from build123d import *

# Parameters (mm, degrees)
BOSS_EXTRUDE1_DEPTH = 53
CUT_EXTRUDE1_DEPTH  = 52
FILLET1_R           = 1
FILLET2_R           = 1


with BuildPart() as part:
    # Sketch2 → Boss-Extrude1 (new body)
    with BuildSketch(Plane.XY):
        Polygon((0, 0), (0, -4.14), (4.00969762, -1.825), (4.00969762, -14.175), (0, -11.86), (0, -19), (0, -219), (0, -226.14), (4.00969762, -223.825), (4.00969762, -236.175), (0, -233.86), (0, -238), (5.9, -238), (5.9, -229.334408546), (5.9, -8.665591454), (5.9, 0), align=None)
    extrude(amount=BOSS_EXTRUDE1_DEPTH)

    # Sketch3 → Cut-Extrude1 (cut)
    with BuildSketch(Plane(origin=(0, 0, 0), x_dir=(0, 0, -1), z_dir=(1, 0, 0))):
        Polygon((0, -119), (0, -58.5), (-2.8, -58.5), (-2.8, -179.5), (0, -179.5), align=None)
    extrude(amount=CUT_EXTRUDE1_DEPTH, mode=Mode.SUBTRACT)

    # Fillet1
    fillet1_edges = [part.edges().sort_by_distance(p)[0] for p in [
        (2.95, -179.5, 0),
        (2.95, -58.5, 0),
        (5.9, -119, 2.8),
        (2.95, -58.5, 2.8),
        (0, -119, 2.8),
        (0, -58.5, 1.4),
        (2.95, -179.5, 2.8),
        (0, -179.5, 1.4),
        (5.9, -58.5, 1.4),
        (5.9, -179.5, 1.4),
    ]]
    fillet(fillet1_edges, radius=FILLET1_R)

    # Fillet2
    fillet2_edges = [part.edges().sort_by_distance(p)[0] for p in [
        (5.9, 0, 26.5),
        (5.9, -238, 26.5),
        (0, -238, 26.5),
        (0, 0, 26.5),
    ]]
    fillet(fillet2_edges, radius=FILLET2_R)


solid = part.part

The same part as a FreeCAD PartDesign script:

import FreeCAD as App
import Part
import Sketcher
from FreeCAD import Vector
Q = App.Units.Quantity


def edges_at(feature, points):
    """Names of the edges that pass closest to the given points."""
    edges = feature.Shape.Edges
    near = lambda p: min(range(len(edges)), key=lambda i: edges[i].distToShape(Part.Vertex(*p))[0])
    return sorted({f"Edge{near(p) + 1}" for p in points})

doc = App.newDocument("Part")
params = doc.addObject("Spreadsheet::Sheet", "Params")
for row, (alias, value) in enumerate([
    ("sketch1_height", "238 mm"),
    ("sketch1_width", "5.9 mm"),
    ("sketch1_height2", "4.14 mm"),
    ("sketch1_height3", "12.35 mm"),
    ("pad1_length", "53 mm"),
    ("sketch2_width", "121 mm"),
    ("sketch2_height", "2.8 mm"),
    ("pocket1_length", "52 mm"),
    ("fillet_radius", "1 mm"),
    ("fillet2_radius", "1 mm"),
], start=1):
    params.set(f"A{row}", alias)
    params.set(f"B{row}", "=" + value)
    params.setAlias(f"B{row}", alias)

body = doc.addObject("PartDesign::Body", "Body")

# Sketch on XY plane
sketch1 = doc.addObject("Sketcher::SketchObject", "Sketch")
body.addObject(sketch1)
sketch1.AttachmentSupport = (doc.XY_Plane, [""])
sketch1.MapMode = "FlatFace"
sketch1.addGeometry([
    Part.LineSegment(Vector(0, 0, 0), Vector(0, -4.14, 0)),  # 0
    Part.LineSegment(Vector(0, -4.14, 0), Vector(4.009698, -1.825, 0)),  # 1
    Part.LineSegment(Vector(4.009698, -1.825, 0), Vector(4.009698, -14.175, 0)),  # 2
    Part.LineSegment(Vector(4.009698, -14.175, 0), Vector(0, -11.86, 0)),  # 3
    Part.LineSegment(Vector(0, -11.86, 0), Vector(0, -226.14, 0)),  # 4
    Part.LineSegment(Vector(0, -226.14, 0), Vector(4.009698, -223.825, 0)),  # 5
    Part.LineSegment(Vector(4.009698, -223.825, 0), Vector(4.009698, -236.175, 0)),  # 6
    Part.LineSegment(Vector(4.009698, -236.175, 0), Vector(0, -233.86, 0)),  # 7
    Part.LineSegment(Vector(0, -233.86, 0), Vector(0, -238, 0)),  # 8
    Part.LineSegment(Vector(0, -238, 0), Vector(5.9, -238, 0)),  # 9
    Part.LineSegment(Vector(5.9, -238, 0), Vector(5.9, 0, 0)),  # 10
    Part.LineSegment(Vector(5.9, 0, 0), Vector(0, 0, 0)),  # 11
], False)
sketch1.addConstraint([
    Sketcher.Constraint("Coincident", 0, 2, 1, 1),
    Sketcher.Constraint("Coincident", 1, 2, 2, 1),
    Sketcher.Constraint("Coincident", 2, 2, 3, 1),
    Sketcher.Constraint("Coincident", 3, 2, 4, 1),
    Sketcher.Constraint("Coincident", 4, 2, 5, 1),
    Sketcher.Constraint("Coincident", 5, 2, 6, 1),
    Sketcher.Constraint("Coincident", 6, 2, 7, 1),
    Sketcher.Constraint("Coincident", 7, 2, 8, 1),
    Sketcher.Constraint("Coincident", 8, 2, 9, 1),
    Sketcher.Constraint("Coincident", 9, 2, 10, 1),
    Sketcher.Constraint("Coincident", 10, 2, 11, 1),
    Sketcher.Constraint("Coincident", 11, 2, 0, 1),
    Sketcher.Constraint("Vertical", 0),
    Sketcher.Constraint("Vertical", 2),
    Sketcher.Constraint("Vertical", 4),
    Sketcher.Constraint("Vertical", 6),
    Sketcher.Constraint("Vertical", 8),
    Sketcher.Constraint("Horizontal", 9),
    Sketcher.Constraint("Vertical", 10),
    Sketcher.Constraint("Horizontal", 11),
    Sketcher.Constraint("Coincident", 11, 2, -1, 1),
    Sketcher.Constraint("PointOnObject", 3, 2, -2),
    Sketcher.Constraint("PointOnObject", 7, 2, -2),
    Sketcher.Constraint("Parallel", 1, 5),
    Sketcher.Constraint("Parallel", 3, 7),
    Sketcher.Constraint("Vertical", 2, 2, 5, 2),
    Sketcher.Constraint("Equal", 2, 6),
    Sketcher.Constraint("Equal", 0, 8),
    Sketcher.Constraint("Equal", 1, 3),
    Sketcher.Constraint("DistanceY", 10, 1, 10, 2, 238.0),
    Sketcher.Constraint("Angle", 1, Q("30 deg")),
    Sketcher.Constraint("DistanceX", 9, 1, 9, 2, 5.9),
    Sketcher.Constraint("DistanceY", 4, 2, 0, 2, 222.0),
    Sketcher.Constraint("DistanceY", 0, 2, 0, 1, 4.14),
    Sketcher.Constraint("DistanceY", 2, 2, 2, 1, 12.35),
])
sketch1.setExpression("Constraints[29]", "Params.sketch1_height")
sketch1.setExpression("Constraints[31]", "Params.sketch1_width")
sketch1.setExpression("Constraints[33]", "Params.sketch1_height2")
sketch1.setExpression("Constraints[34]", "Params.sketch1_height3")
pad1 = doc.addObject("PartDesign::Pad", "Pad")
body.addObject(pad1)
pad1.Profile = sketch1
pad1.setExpression("Length", "Params.pad1_length")

# Sketch on YZ plane
sketch2 = doc.addObject("Sketcher::SketchObject", "Sketch001")
body.addObject(sketch2)
sketch2.AttachmentSupport = (doc.YZ_Plane, [""])
sketch2.MapMode = "FlatFace"
sketch2.addGeometry([
    Part.LineSegment(Vector(-58.5, 0, 0), Vector(-58.5, 2.8, 0)),
    Part.LineSegment(Vector(-58.5, 2.8, 0), Vector(-179.5, 2.8, 0)),
    Part.LineSegment(Vector(-179.5, 2.8, 0), Vector(-179.5, 0, 0)),
    Part.LineSegment(Vector(-179.5, 0, 0), Vector(-58.5, 0, 0)),
], False)
sketch2.addConstraint([
    Sketcher.Constraint("Coincident", 0, 2, 1, 1),
    Sketcher.Constraint("Coincident", 1, 2, 2, 1),
    Sketcher.Constraint("Coincident", 2, 2, 3, 1),
    Sketcher.Constraint("Coincident", 3, 2, 0, 1),
    Sketcher.Constraint("Vertical", 0),
    Sketcher.Constraint("Horizontal", 1),
    Sketcher.Constraint("Vertical", 2),
    Sketcher.Constraint("Horizontal", 3),
    Sketcher.Constraint("PointOnObject", 2, 2, -1),
    Sketcher.Constraint("DistanceX", 1, 2, 1, 1, 121.0),
    Sketcher.Constraint("DistanceY", 0, 1, 0, 2, 2.8),
    Sketcher.Constraint("DistanceX", 0, 2, -1, 1, 58.5),
])
sketch2.setExpression("Constraints[9]", "Params.sketch2_width")
sketch2.setExpression("Constraints[10]", "Params.sketch2_height")
pocket1 = doc.addObject("PartDesign::Pocket", "Pocket")
body.addObject(pocket1)
pocket1.Profile = sketch2
pocket1.setExpression("Length", "Params.pocket1_length")
pocket1.Reversed = True
doc.recompute()

fillet = doc.addObject("PartDesign::Fillet", "Fillet")
body.addObject(fillet)
fillet.Base = (pocket1, edges_at(pocket1, [
    (2.95, -179.5, 0),
    (2.95, -58.5, 0),
    (5.9, -119, 2.8),
    (2.95, -58.5, 2.8),
    (0, -119, 2.8),
    (0, -58.5, 1.4),
    (2.95, -179.5, 2.8),
    (0, -179.5, 1.4),
    (5.9, -58.5, 1.4),
    (5.9, -179.5, 1.4),
]))
fillet.setExpression("Radius", "Params.fillet_radius")
doc.recompute()

fillet2 = doc.addObject("PartDesign::Fillet", "Fillet001")
body.addObject(fillet2)
fillet2.Base = (fillet, edges_at(fillet, [
    (5.9, 0, 26.5),
    (5.9, -238, 26.5),
    (0, -238, 26.5),
    (0, 0, 26.5),
]))
fillet2.setExpression("Radius", "Params.fillet2_radius")

doc.recompute()
